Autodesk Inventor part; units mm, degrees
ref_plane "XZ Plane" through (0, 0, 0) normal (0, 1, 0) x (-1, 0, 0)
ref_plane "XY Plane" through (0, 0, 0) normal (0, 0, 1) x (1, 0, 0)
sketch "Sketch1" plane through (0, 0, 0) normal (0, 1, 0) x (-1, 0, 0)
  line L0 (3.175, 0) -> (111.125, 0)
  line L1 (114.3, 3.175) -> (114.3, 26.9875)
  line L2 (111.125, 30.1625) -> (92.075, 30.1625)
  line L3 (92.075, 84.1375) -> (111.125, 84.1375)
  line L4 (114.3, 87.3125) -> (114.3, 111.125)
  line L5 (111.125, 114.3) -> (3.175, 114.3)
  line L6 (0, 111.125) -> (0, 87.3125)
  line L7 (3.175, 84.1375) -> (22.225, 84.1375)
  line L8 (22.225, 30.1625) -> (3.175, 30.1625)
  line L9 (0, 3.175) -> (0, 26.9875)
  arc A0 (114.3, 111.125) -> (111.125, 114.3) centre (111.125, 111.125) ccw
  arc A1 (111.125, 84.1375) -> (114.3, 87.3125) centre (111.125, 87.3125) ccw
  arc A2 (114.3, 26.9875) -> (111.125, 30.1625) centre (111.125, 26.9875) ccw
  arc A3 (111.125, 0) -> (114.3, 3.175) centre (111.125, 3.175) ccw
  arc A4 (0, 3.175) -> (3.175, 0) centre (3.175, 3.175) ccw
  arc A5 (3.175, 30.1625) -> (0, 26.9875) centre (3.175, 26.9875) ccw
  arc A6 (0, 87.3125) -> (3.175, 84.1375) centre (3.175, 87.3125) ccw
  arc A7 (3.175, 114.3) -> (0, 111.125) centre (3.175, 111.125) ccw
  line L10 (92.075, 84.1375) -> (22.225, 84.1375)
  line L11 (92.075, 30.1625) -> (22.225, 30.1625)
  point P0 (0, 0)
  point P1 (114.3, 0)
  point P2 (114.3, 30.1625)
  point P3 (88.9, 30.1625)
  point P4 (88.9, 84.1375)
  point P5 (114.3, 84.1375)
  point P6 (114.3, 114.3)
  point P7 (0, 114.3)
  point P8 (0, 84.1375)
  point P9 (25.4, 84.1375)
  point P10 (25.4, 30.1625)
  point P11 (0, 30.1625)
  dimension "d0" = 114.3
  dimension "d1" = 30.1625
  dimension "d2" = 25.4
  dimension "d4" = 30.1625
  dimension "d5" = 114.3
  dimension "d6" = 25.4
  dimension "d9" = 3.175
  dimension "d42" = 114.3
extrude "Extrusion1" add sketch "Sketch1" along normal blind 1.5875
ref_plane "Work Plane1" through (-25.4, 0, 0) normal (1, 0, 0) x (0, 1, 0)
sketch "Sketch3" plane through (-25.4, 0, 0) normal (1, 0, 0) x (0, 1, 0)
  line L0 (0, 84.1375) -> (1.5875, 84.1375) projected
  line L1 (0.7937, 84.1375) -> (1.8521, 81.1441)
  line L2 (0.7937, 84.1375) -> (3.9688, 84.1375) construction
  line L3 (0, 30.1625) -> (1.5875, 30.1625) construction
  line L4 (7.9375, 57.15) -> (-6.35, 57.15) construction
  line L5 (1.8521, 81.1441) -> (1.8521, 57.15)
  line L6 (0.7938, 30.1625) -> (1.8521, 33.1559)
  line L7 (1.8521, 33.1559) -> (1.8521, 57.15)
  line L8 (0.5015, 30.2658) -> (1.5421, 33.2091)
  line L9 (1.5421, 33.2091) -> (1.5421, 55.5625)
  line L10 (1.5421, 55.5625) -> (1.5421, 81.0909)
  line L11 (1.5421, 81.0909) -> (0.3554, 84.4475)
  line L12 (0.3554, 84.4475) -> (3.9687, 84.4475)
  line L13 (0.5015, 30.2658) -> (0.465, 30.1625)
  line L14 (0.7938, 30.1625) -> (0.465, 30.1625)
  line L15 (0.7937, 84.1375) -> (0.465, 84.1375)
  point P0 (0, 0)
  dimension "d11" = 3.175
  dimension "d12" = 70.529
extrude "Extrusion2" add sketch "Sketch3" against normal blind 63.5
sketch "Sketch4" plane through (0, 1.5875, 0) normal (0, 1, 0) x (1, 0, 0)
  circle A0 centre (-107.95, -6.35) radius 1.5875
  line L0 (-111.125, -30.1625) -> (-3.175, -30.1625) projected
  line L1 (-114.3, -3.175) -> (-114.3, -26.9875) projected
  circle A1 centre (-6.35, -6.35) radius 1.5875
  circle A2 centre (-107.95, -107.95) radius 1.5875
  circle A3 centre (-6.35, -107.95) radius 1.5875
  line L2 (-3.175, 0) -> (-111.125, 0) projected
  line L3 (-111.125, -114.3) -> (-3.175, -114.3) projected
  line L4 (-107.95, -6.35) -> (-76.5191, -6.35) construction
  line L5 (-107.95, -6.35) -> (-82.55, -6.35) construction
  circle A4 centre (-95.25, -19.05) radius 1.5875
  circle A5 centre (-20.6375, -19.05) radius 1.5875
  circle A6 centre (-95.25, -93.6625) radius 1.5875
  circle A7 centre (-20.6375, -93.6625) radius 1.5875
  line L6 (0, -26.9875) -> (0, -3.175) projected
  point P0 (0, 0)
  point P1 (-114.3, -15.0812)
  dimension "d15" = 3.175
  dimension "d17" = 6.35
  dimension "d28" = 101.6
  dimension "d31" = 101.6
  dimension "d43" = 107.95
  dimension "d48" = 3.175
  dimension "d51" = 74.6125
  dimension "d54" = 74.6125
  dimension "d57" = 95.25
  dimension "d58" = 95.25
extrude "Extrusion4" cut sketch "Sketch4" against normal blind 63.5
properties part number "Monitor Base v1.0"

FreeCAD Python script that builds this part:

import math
import FreeCAD as App
import Part
import Sketcher
from FreeCAD import Vector
Q = App.Units.Quantity


def add_polygon(sketch, points):
    """Adds a closed chain of lines whose ends are joined by coincident constraints."""
    first, n = sketch.GeometryCount, len(points)
    for a, b in zip(points, points[1:] + points[:1]):
        sketch.addGeometry(Part.LineSegment(App.Vector(*a, 0), App.Vector(*b, 0)), False)
    for i in range(n):
        sketch.addConstraint(Sketcher.Constraint("Coincident", first + i, 2, first + (i + 1) % n, 1))

doc = App.newDocument("Part")
params = doc.addObject("Spreadsheet::Sheet", "Params")
for row, (alias, value) in enumerate([
    ("sketch1_radius", "0.125 in"),
    ("pad1_length", "0.0625 in"),
    ("sketch2_length", "0.125 in"),
    ("pad2_length", "2.5 in"),
    ("sketch3_diameter", "0.125 in"),
    ("pocket1_length", "2.5 in"),
], start=1):
    params.set(f"A{row}", alias)
    params.set(f"B{row}", "=" + value)
    params.setAlias(f"B{row}", alias)

body = doc.addObject("PartDesign::Body", "Body")
body.AllowCompound = True

# Sketch on XZ plane
sketch1 = doc.addObject("Sketcher::SketchObject", "Sketch")
body.addObject(sketch1)
sketch1.AttachmentSupport = (doc.XZ_Plane, [""])
sketch1.MapMode = "FlatFace"
sketch1.addGeometry([
    Part.ArcOfCircle(Part.Circle(Vector(-3.2, 3.2, 0), Vector(0, 0, 1), 3.2), math.radians(-90), math.radians(0)),  # 0
    Part.LineSegment(Vector(-3.2, 0, 0), Vector(-111.1, 0, 0)),  # 1
    Part.ArcOfCircle(Part.Circle(Vector(-111.1, 3.2, 0), Vector(0, 0, 1), 3.2), math.radians(180), math.radians(270)),  # 2
    Part.LineSegment(Vector(-114.3, 3.2, 0), Vector(-114.3, 27, 0)),  # 3
    Part.ArcOfCircle(Part.Circle(Vector(-111.1, 27, 0), Vector(0, 0, 1), 3.2), math.radians(90), math.radians(180)),  # 4
    Part.LineSegment(Vector(-111.1, 30.2, 0), Vector(-3.2, 30.2, 0)),  # 5
    Part.ArcOfCircle(Part.Circle(Vector(-3.2, 27, 0), Vector(0, 0, 1), 3.2), math.radians(0), math.radians(90)),  # 6
    Part.LineSegment(Vector(0, 27, 0), Vector(0, 3.2, 0)),  # 7
    Part.LineSegment(Vector(-3.2, 84.1, 0), Vector(-111.1, 84.1, 0)),  # 8
    Part.ArcOfCircle(Part.Circle(Vector(-111.1, 87.3, 0), Vector(0, 0, 1), 3.2), math.radians(180), math.radians(270)),  # 9
    Part.LineSegment(Vector(-114.3, 87.3, 0), Vector(-114.3, 111.1, 0)),  # 10
    Part.ArcOfCircle(Part.Circle(Vector(-111.1, 111.1, 0), Vector(0, 0, 1), 3.2), math.radians(90), math.radians(180)),  # 11
    Part.LineSegment(Vector(-111.1, 114.3, 0), Vector(-3.2, 114.3, 0)),  # 12
    Part.ArcOfCircle(Part.Circle(Vector(-3.2, 111.1, 0), Vector(0, 0, 1), 3.2), math.radians(0), math.radians(90)),  # 13
    Part.LineSegment(Vector(0, 111.1, 0), Vector(0, 87.3, 0)),  # 14
    Part.ArcOfCircle(Part.Circle(Vector(-3.2, 87.3, 0), Vector(0, 0, 1), 3.2), math.radians(-90), math.radians(0)),  # 15
], False)
sketch1.addConstraint([
    Sketcher.Constraint("Tangent", 0, 1, 1, 1),
    Sketcher.Constraint("Tangent", 1, 2, 2, 2),
    Sketcher.Constraint("Tangent", 2, 1, 3, 1),
    Sketcher.Constraint("Tangent", 3, 2, 4, 2),
    Sketcher.Constraint("Tangent", 4, 1, 5, 1),
    Sketcher.Constraint("Tangent", 5, 2, 6, 2),
    Sketcher.Constraint("Tangent", 6, 1, 7, 1),
    Sketcher.Constraint("Tangent", 7, 2, 0, 2),
    Sketcher.Constraint("Tangent", 8, 2, 9, 2),
    Sketcher.Constraint("Tangent", 9, 1, 10, 1),
    Sketcher.Constraint("Tangent", 10, 2, 11, 2),
    Sketcher.Constraint("Tangent", 11, 1, 12, 1),
    Sketcher.Constraint("Tangent", 12, 2, 13, 2),
    Sketcher.Constraint("Tangent", 13, 1, 14, 1),
    Sketcher.Constraint("Tangent", 14, 2, 15, 2),
    Sketcher.Constraint("Tangent", 15, 1, 8, 1),
    Sketcher.Constraint("Horizontal", 1),
    Sketcher.Constraint("Vertical", 3),
    Sketcher.Constraint("Horizontal", 5),
    Sketcher.Constraint("Vertical", 7),
    Sketcher.Constraint("Horizontal", 8),
    Sketcher.Constraint("Vertical", 10),
    Sketcher.Constraint("Horizontal", 12),
    Sketcher.Constraint("Vertical", 14),
    Sketcher.Constraint("Equal", 0, 2),
    Sketcher.Constraint("Equal", 2, 4),
    Sketcher.Constraint("Equal", 4, 6),
    Sketcher.Constraint("Equal", 6, 9),
    Sketcher.Constraint("Equal", 9, 11),
    Sketcher.Constraint("Equal", 11, 13),
    Sketcher.Constraint("Equal", 13, 15),
    Sketcher.Constraint("PointOnObject", 0, 1, -1),
    Sketcher.Constraint("PointOnObject", 6, 1, -2),
    Sketcher.Constraint("PointOnObject", 13, 1, -2),
    Sketcher.Constraint("Vertical", 4, 3, 9, 3),
    Sketcher.Constraint("Equal", 7, 10),
    Sketcher.Constraint("Radius", 0, Q("0.125 in")),
    Sketcher.Constraint("DistanceX", 2, 1, -1, 1, Q("4.5 in")),
    Sketcher.Constraint("DistanceY", -1, 1, 11, 1, Q("4.5 in")),
    Sketcher.Constraint("DistanceY", -1, 1, 4, 1, Q("1.1875 in")),
])
sketch1.setExpression("Constraints[36]", "Params.sketch1_radius")
pad1 = doc.addObject("PartDesign::Pad", "Pad")
body.addObject(pad1)
pad1.Profile = sketch1
pad1.setExpression("Length", "Params.pad1_length")
pad1.Reversed = True

# Sketch on YZ plane
sketch2 = doc.addObject("Sketcher::SketchObject", "Sketch001")
body.addObject(sketch2)
sketch2.AttachmentSupport = (doc.YZ_Plane, [""])
sketch2.MapMode = "FlatFace"
sketch2.AttachmentOffset = App.Placement(Vector(0, 0, -1 * 25.4), App.Rotation())
add_polygon(sketch2, [(0.79, 84.14), (0.46, 84.14), (1.54, 81.09), (1.54, 33.21), (0.5, 30.27), (0.47, 30.16), (0.79, 30.16), (1.85, 33.16), (1.85, 81.14)])  # lines 0-8
sketch2.addConstraint([
    Sketcher.Constraint("Horizontal", 0),
    Sketcher.Constraint("Vertical", 2),
    Sketcher.Constraint("Horizontal", 5),
    Sketcher.Constraint("Vertical", 7),
    Sketcher.Constraint("Parallel", 3, 4),
    Sketcher.Constraint("Parallel", 4, 6),
    Sketcher.Constraint("Parallel", 1, 8),
    Sketcher.Constraint("Vertical", 0, 2, 4, 2),
    Sketcher.Constraint("Vertical", 5, 2, 8, 2),
    Sketcher.Constraint("Equal", 6, 8),
    Sketcher.Constraint("Angle", 1, Q("-70.5293 deg")),
    Sketcher.Constraint("Distance", 6, Q("0.125 in")),
    Sketcher.Constraint("DistanceY", 2, 2, 2, 1, Q("1.8851 in")),
    Sketcher.Constraint("DistanceY", 7, 1, 7, 2, Q("1.8893 in")),
    Sketcher.Constraint("DistanceY", -1, 1, 0, 2, Q("3.3125 in")),
    Sketcher.Constraint("DistanceX", -1, 1, 5, 2, Q("0.031252 in")),
    Sketcher.Constraint("DistanceY", 3, 2, 1, 2, Q("2.001 in")),
    Sketcher.Constraint("DistanceX", 0, 2, 0, 1, 0.3287),
])
sketch2.setExpression("Constraints[20]", "Params.sketch2_length")
pad2 = doc.addObject("PartDesign::Pad", "Pad001")
body.addObject(pad2)
pad2.Profile = sketch2
pad2.setExpression("Length", "Params.pad2_length")
pad2.Reversed = True

# Sketch on XZ plane
sketch3 = doc.addObject("Sketcher::SketchObject", "Sketch002")
body.addObject(sketch3)
sketch3.AttachmentSupport = (doc.XZ_Plane, [""])
sketch3.MapMode = "FlatFace"
sketch3.AttachmentOffset = App.Placement(Vector(0, 0, -0.0625 * 25.4), App.Rotation())
sketch3.addGeometry([
    Part.Circle(Vector(-108, 6.3, 0), Vector(0, 0, 1), 1.6),  # 0
    Part.Circle(Vector(-6.3, 6.3, 0), Vector(0, 0, 1), 1.6),  # 1
    Part.Circle(Vector(-108, 108, 0), Vector(0, 0, 1), 1.6),  # 2
    Part.Circle(Vector(-6.3, 108, 0), Vector(0, 0, 1), 1.6),  # 3
    Part.Circle(Vector(-95.2, 19.1, 0), Vector(0, 0, 1), 1.6),  # 4
    Part.Circle(Vector(-20.6, 19.1, 0), Vector(0, 0, 1), 1.6),  # 5
    Part.Circle(Vector(-95.2, 93.7, 0), Vector(0, 0, 1), 1.6),  # 6
    Part.Circle(Vector(-20.6, 93.7, 0), Vector(0, 0, 1), 1.6),  # 7
], False)
sketch3.addConstraint([
    Sketcher.Constraint("Equal", 0, 1),
    Sketcher.Constraint("Equal", 1, 2),
    Sketcher.Constraint("Equal", 2, 3),
    Sketcher.Constraint("Equal", 3, 4),
    Sketcher.Constraint("Equal", 4, 5),
    Sketcher.Constraint("Equal", 5, 6),
    Sketcher.Constraint("Equal", 6, 7),
    Sketcher.Constraint("Horizontal", 0, 3, 1, 3),
    Sketcher.Constraint("Horizontal", 2, 3, 3, 3),
    Sketcher.Constraint("Horizontal", 4, 3, 5, 3),
    Sketcher.Constraint("Horizontal", 6, 3, 7, 3),
    Sketcher.Constraint("Vertical", 0, 3, 2, 3),
    Sketcher.Constraint("Vertical", 1, 3, 3, 3),
    Sketcher.Constraint("Vertical", 4, 3, 6, 3),
    Sketcher.Constraint("Vertical", 5, 3, 7, 3),
    Sketcher.Constraint("Diameter", 0, Q("0.125 in")),
    Sketcher.Constraint("DistanceX", 0, 3, 1, 3, Q("4 in")),
    Sketcher.Constraint("DistanceY", 0, 3, 2, 3, Q("4 in")),
    Sketcher.Constraint("DistanceX", 0, 3, -1, 1, Q("4.25 in")),
    Sketcher.Constraint("DistanceY", -1, 1, 0, 3, Q("0.25 in")),
    Sketcher.Constraint("DistanceX", 4, 3, -1, 1, Q("3.75 in")),
    Sketcher.Constraint("DistanceX", 4, 3, 5, 3, Q("2.9375 in")),
    Sketcher.Constraint("DistanceY", 4, 3, 6, 3, Q("2.9375 in")),
    Sketcher.Constraint("DistanceY", 0, 3, 4, 3, Q("0.5 in")),
])
sketch3.setExpression("Constraints[15]", "Params.sketch3_diameter")
pocket1 = doc.addObject("PartDesign::Pocket", "Pocket")
body.addObject(pocket1)
pocket1.Profile = sketch3
pocket1.setExpression("Length", "Params.pocket1_length")
pocket1.Reversed = True

doc.recompute()
